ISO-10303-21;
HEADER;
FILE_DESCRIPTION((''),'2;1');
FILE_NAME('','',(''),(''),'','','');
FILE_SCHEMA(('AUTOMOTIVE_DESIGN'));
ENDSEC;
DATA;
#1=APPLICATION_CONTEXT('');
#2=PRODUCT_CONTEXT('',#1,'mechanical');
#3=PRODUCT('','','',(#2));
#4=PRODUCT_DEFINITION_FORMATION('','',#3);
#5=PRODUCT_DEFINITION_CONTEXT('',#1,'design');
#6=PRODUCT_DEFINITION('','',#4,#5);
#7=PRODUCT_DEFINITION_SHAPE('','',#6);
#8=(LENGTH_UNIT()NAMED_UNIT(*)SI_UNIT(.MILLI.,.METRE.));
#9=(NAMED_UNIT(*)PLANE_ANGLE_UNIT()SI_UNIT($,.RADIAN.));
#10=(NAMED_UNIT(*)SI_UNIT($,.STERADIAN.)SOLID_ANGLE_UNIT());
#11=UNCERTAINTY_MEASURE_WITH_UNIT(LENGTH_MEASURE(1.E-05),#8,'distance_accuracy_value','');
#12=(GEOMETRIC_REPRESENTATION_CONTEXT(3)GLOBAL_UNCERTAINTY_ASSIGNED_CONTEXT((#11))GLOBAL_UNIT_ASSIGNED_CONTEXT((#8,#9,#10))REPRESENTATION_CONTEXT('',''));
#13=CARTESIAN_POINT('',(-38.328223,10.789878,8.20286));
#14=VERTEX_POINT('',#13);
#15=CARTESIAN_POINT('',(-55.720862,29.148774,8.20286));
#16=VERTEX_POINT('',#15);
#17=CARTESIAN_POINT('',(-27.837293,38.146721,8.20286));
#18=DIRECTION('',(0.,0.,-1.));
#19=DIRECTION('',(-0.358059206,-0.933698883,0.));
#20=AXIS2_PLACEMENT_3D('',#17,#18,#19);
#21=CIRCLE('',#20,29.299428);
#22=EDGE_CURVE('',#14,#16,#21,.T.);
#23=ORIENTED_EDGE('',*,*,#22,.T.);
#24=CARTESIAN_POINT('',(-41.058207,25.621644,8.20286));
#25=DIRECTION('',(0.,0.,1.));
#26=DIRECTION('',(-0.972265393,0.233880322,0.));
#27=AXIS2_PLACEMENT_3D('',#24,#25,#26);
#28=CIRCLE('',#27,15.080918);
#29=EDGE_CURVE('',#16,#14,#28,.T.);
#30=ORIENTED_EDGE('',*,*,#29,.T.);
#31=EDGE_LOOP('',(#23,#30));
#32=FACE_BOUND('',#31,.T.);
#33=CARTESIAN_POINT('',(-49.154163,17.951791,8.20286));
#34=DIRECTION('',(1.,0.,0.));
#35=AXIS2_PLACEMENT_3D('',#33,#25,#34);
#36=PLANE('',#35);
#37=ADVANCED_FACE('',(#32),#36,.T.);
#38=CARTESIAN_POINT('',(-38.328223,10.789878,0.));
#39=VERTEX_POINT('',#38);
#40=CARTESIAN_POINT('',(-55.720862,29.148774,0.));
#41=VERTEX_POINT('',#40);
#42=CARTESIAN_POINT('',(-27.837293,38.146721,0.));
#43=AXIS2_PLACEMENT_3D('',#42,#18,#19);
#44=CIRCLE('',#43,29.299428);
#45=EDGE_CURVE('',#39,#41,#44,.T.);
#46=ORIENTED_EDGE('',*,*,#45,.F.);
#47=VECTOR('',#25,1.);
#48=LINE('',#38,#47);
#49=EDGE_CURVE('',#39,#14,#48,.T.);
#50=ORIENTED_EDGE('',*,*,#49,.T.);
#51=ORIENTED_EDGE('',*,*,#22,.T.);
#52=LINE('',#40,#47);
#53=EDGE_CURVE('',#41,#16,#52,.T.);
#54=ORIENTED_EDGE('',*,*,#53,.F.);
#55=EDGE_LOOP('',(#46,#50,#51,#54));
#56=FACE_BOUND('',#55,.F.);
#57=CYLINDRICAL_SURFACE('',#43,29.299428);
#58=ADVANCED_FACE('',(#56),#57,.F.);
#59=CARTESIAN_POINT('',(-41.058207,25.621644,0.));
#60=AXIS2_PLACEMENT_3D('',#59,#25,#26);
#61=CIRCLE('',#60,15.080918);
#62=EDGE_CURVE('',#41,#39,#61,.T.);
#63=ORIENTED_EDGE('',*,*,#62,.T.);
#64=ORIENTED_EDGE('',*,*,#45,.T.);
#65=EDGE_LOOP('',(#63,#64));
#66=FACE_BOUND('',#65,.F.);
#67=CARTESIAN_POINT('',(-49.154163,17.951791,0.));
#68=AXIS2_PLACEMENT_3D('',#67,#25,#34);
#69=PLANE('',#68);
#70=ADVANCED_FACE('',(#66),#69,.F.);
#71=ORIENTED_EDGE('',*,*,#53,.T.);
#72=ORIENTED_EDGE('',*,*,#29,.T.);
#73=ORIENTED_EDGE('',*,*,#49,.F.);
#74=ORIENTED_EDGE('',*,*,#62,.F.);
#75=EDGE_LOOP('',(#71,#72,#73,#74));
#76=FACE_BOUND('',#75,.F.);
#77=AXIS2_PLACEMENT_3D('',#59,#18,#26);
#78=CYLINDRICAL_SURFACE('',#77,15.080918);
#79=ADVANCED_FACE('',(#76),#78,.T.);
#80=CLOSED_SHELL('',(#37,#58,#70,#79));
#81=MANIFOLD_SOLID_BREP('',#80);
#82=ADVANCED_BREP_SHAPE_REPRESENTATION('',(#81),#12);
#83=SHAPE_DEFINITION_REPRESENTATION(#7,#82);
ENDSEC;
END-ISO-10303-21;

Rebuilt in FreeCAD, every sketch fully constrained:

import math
import FreeCAD as App
import Part
import Sketcher
Q = App.Units.Quantity

doc = App.newDocument("Part")
params = doc.addObject("Spreadsheet::Sheet", "Params")
for row, (alias, value) in enumerate([
    ("pad1_length", "8.20286 mm"),
], start=1):
    params.set(f"A{row}", alias)
    params.set(f"B{row}", "=" + value)
    params.setAlias(f"B{row}", alias)

body = doc.addObject("PartDesign::Body", "Body")

sketch1 = body.newObject("Sketcher::SketchObject", "Sketch")
sketch1.AttachmentSupport = (doc.getObject("XY_Plane"), [""])
sketch1.MapMode = "FlatFace"
sketch1.addGeometry([
    Part.ArcOfCircle(Part.Circle(App.Vector(-27.837293, 38.146721, 0), App.Vector(0, 0, 1), 29.299428), math.radians(-162.11526), math.radians(-110.981053)),
    Part.ArcOfCircle(Part.Circle(App.Vector(-41.058207, 25.621644, 0), App.Vector(0, 0, 1), 15.080918), math.radians(166.474369), math.radians(280.429318)),
], False)
sketch1.addConstraint([
    Sketcher.Constraint("Coincident", 0, 1, 1, 1),
    Sketcher.Constraint("Coincident", 1, 2, 0, 2),
    Sketcher.Constraint("Radius", 1, Q("15.080918 mm")),
    Sketcher.Constraint("Radius", 0, Q("29.299428 mm")),
    Sketcher.Constraint("DistanceY", -1, 1, 0, 3, Q("38.146721 mm")),
    Sketcher.Constraint("DistanceX", 0, 1, -1, 1, Q("55.720862 mm")),
    Sketcher.Constraint("DistanceY", -1, 1, 1, 2, Q("10.789878 mm")),
    Sketcher.Constraint("DistanceY", 1, 3, 0, 1, Q("3.52713 mm")),
])
pad1 = body.newObject("PartDesign::Pad", "Pad")
pad1.Profile = sketch1
pad1.setExpression("Length", "Params.pad1_length")

doc.recompute()
